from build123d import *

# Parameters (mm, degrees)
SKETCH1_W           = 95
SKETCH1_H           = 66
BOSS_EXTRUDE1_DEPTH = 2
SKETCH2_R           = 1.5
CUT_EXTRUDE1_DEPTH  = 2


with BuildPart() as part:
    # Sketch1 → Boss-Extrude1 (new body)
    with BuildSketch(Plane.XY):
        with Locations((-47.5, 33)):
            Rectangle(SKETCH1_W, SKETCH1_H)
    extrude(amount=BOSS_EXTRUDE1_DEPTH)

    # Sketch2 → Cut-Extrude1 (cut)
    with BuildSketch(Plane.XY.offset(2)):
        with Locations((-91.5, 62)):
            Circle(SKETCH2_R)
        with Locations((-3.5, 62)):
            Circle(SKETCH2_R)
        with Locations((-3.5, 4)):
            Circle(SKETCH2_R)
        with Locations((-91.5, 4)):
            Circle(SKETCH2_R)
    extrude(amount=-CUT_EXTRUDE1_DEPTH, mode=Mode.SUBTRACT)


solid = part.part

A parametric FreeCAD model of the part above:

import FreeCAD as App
import Part
import Sketcher

V = App.Vector


def add_polygon(sketch, points):
    """Adds a closed chain of lines whose ends are joined by coincident constraints."""
    first, n = sketch.GeometryCount, len(points)
    for a, b in zip(points, points[1:] + points[:1]):
        sketch.addGeometry(Part.LineSegment(App.Vector(*a, 0), App.Vector(*b, 0)), False)
    for i in range(n):
        sketch.addConstraint(Sketcher.Constraint("Coincident", first + i, 2, first + (i + 1) % n, 1))

doc = App.newDocument("Part")
params = doc.addObject("Spreadsheet::Sheet", "Params")
for row, (alias, value) in enumerate([
    ("sketch1_width", "95 mm"),
    ("sketch1_height", "66 mm"),
    ("pad1_length", "2 mm"),
    ("sketch2_diameter", "3 mm"),
    ("pocket1_length", "2 mm"),
], start=1):
    params.set(f"A{row}", alias)
    params.set(f"B{row}", "=" + value)
    params.setAlias(f"B{row}", alias)

body = doc.addObject("PartDesign::Body", "Body")

sketch1 = body.newObject("Sketcher::SketchObject", "Sketch")
sketch1.AttachmentSupport = (doc.getObject("XY_Plane"), [""])
sketch1.MapMode = "FlatFace"
add_polygon(sketch1, [(-95, 66), (-95, 0), (0, 0), (0, 66)])
sketch1.addConstraint(Sketcher.Constraint("Vertical", 0))
sketch1.addConstraint(Sketcher.Constraint("Horizontal", 1))
sketch1.addConstraint(Sketcher.Constraint("Vertical", 2))
sketch1.addConstraint(Sketcher.Constraint("Horizontal", 3))
sketch1.addConstraint(Sketcher.Constraint("Coincident", 1, 2, -1, 1))
sketch1.addConstraint(Sketcher.Constraint("DistanceX", 1, 1, 1, 2, 95.0))
sketch1.addConstraint(Sketcher.Constraint("DistanceY", 0, 2, 0, 1, 66.0))
sketch1.setExpression("Constraints[9]", "Params.sketch1_width")
sketch1.setExpression("Constraints[10]", "Params.sketch1_height")
pad1 = body.newObject("PartDesign::Pad", "Pad")
pad1.Profile = sketch1
pad1.setExpression("Length", "Params.pad1_length")

sketch2 = body.newObject("Sketcher::SketchObject", "Sketch001")
sketch2.AttachmentSupport = (doc.getObject("XY_Plane"), [""])
sketch2.MapMode = "FlatFace"
sketch2.AttachmentOffset = App.Placement(V(0, 0, 2), App.Rotation())
sketch2.addGeometry(Part.Circle(V(-91.5, 62, 0), V(0, 0, 1), 1.5), False)
sketch2.addGeometry(Part.Circle(V(-3.5, 62, 0), V(0, 0, 1), 1.5), False)
sketch2.addGeometry(Part.Circle(V(-3.5, 4, 0), V(0, 0, 1), 1.5), False)
sketch2.addGeometry(Part.Circle(V(-91.5, 4, 0), V(0, 0, 1), 1.5), False)
sketch2.addConstraint(Sketcher.Constraint("Equal", 0, 1))
sketch2.addConstraint(Sketcher.Constraint("Equal", 1, 2))
sketch2.addConstraint(Sketcher.Constraint("Equal", 2, 3))
sketch2.addConstraint(Sketcher.Constraint("Horizontal", 0, 3, 1, 3))
sketch2.addConstraint(Sketcher.Constraint("Horizontal", 2, 3, 3, 3))
sketch2.addConstraint(Sketcher.Constraint("Vertical", 1, 3, 2, 3))
sketch2.addConstraint(Sketcher.Constraint("Vertical", 0, 3, 3, 3))
sketch2.addConstraint(Sketcher.Constraint("Diameter", 0, 3.0))
sketch2.addConstraint(Sketcher.Constraint("DistanceY", -1, 1, 0, 3, 62.0))
sketch2.addConstraint(Sketcher.Constraint("DistanceY", -1, 1, 2, 3, 4.0))
sketch2.addConstraint(Sketcher.Constraint("DistanceX", 0, 3, 1, 3, 88.0))
sketch2.addConstraint(Sketcher.Constraint("DistanceX", 0, 3, -1, 1, 91.5))
sketch2.setExpression("Constraints[7]", "Params.sketch2_diameter")
pocket1 = body.newObject("PartDesign::Pocket", "Pocket")
pocket1.Profile = sketch2
pocket1.setExpression("Length", "Params.pocket1_length")

doc.recompute()
